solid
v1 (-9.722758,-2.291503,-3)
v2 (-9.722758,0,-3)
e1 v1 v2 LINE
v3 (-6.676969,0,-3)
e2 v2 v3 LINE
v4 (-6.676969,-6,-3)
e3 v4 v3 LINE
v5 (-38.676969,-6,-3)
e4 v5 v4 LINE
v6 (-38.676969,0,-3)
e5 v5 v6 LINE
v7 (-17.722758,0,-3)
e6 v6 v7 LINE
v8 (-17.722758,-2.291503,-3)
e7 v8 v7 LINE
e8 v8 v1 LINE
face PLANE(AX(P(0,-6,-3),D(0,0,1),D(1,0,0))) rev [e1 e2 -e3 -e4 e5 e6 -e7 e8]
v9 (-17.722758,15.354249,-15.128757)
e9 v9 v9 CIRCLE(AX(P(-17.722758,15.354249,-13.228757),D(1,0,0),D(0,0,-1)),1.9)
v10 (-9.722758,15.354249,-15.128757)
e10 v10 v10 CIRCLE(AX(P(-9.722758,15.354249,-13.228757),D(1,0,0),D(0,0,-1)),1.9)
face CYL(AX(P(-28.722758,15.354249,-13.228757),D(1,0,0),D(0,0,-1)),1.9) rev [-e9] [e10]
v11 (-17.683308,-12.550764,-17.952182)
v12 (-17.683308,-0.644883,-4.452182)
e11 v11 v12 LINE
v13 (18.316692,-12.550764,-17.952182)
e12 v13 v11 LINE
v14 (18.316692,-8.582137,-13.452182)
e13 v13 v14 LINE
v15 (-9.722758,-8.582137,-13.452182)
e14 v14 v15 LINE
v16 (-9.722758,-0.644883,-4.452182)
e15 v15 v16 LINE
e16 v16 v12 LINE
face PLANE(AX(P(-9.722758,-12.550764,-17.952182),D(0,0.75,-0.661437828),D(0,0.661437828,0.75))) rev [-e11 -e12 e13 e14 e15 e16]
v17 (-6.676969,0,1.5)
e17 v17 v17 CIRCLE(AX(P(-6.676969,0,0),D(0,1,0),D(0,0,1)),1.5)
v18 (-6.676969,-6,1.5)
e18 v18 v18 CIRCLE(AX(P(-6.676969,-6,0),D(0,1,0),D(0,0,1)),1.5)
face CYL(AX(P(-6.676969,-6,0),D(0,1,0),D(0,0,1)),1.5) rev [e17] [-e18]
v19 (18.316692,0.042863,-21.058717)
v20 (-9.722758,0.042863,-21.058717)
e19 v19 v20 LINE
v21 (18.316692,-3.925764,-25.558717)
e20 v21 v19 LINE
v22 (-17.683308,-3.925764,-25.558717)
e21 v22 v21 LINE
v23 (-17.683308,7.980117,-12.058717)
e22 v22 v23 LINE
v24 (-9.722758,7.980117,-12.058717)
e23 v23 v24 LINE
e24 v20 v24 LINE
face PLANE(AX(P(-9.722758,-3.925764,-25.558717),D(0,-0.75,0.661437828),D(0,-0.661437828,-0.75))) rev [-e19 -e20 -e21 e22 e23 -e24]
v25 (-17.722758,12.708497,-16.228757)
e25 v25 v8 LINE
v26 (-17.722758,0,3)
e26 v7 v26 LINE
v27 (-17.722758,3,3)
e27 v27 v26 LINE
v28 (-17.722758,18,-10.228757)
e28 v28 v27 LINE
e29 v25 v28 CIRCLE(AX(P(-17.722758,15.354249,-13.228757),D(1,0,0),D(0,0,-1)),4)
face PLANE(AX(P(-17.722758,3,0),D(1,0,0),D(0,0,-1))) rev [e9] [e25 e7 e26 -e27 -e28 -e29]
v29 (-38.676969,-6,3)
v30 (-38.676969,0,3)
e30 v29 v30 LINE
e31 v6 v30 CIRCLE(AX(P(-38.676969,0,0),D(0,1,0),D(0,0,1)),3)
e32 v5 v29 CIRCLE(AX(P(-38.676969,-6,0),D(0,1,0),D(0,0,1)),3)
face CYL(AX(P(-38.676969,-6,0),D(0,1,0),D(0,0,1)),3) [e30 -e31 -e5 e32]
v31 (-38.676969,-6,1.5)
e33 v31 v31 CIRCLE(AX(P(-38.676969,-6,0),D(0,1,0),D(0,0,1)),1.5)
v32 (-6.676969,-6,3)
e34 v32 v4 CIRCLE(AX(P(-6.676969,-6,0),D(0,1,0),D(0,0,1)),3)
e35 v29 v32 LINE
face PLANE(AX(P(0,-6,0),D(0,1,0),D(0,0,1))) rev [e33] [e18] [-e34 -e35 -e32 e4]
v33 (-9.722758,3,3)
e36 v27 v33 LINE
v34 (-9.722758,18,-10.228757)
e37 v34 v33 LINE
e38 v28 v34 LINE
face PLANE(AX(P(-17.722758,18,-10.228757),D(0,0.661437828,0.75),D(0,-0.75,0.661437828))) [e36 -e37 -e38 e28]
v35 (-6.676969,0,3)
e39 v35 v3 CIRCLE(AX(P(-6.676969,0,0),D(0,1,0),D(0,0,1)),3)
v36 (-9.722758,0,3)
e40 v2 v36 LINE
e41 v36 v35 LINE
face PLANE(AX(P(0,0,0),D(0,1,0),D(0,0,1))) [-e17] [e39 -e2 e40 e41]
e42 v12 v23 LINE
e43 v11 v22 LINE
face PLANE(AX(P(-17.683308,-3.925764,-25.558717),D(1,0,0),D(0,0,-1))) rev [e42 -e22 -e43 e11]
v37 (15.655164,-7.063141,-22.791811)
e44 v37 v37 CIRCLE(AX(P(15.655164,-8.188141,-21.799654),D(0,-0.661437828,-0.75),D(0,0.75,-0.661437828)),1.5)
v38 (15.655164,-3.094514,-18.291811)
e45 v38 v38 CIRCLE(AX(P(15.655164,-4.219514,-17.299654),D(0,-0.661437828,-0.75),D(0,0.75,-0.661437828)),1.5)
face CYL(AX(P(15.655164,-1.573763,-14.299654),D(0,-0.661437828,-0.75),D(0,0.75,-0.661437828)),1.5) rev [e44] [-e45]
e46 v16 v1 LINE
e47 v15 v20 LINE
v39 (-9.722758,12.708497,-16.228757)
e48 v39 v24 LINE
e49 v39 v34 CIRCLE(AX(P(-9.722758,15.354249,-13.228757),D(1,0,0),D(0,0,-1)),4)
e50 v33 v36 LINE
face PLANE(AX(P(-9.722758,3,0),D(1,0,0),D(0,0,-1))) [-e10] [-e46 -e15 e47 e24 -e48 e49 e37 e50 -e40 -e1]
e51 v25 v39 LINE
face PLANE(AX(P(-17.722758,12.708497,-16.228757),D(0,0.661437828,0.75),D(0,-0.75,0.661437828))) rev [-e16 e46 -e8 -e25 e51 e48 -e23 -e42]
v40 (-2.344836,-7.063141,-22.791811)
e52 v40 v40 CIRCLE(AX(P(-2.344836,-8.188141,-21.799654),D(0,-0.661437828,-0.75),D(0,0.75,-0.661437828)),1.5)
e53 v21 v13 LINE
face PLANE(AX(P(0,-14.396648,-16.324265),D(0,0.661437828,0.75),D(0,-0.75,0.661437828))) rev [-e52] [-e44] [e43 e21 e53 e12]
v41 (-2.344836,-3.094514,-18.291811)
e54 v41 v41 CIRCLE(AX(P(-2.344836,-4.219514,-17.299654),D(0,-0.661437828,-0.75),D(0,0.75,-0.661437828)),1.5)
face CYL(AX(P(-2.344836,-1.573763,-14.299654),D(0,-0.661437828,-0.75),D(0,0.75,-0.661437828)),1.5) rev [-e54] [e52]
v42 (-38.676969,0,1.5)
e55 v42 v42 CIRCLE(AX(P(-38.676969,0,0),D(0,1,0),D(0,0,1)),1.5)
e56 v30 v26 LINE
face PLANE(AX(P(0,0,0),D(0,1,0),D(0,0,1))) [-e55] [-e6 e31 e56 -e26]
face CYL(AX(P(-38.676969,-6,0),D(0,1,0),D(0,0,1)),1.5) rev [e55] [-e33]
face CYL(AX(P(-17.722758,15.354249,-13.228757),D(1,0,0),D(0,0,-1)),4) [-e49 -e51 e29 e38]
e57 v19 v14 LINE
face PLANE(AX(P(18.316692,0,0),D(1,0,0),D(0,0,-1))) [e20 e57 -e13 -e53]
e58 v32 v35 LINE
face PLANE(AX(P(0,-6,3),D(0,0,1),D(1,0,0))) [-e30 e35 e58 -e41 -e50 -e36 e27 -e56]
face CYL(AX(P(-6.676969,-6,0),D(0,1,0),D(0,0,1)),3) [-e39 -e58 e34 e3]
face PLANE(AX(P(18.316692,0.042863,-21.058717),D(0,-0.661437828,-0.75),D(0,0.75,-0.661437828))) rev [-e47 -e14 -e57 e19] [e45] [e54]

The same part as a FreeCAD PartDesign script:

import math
import FreeCAD as App
import Part
import Sketcher
Q = App.Units.Quantity


def add_polygon(sketch, points):
    """Adds a closed chain of lines whose ends are joined by coincident constraints."""
    first, n = sketch.GeometryCount, len(points)
    for a, b in zip(points, points[1:] + points[:1]):
        sketch.addGeometry(Part.LineSegment(App.Vector(*a, 0), App.Vector(*b, 0)), False)
    for i in range(n):
        sketch.addConstraint(Sketcher.Constraint("Coincident", first + i, 2, first + (i + 1) % n, 1))

doc = App.newDocument("Part")
body = doc.addObject("PartDesign::Body", "Body")

# Sketch on XZ plane
sketch1 = body.newObject("Sketcher::SketchObject", "Sketch")
sketch1.AttachmentSupport = (doc.getObject("XZ_Plane"), [""])
sketch1.MapMode = "FlatFace"
sketch1.addGeometry([
    Part.ArcOfCircle(Part.Circle(App.Vector(-38.676969, 0, 0), App.Vector(0, 0, 1), 3), math.radians(90), math.radians(270)),  # 0
    Part.LineSegment(App.Vector(-38.676969, 3, 0), App.Vector(-6.676969, 3, 0)),  # 1
    Part.ArcOfCircle(Part.Circle(App.Vector(-6.676969, 0, 0), App.Vector(0, 0, 1), 3), math.radians(-90), math.radians(90)),  # 2
    Part.LineSegment(App.Vector(-6.676969, -3, 0), App.Vector(-38.676969, -3, 0)),  # 3
    Part.Circle(App.Vector(-38.676969, 0, 0), App.Vector(0, 0, 1), 1.5),  # 4
    Part.Circle(App.Vector(-6.676969, 0, 0), App.Vector(0, 0, 1), 1.5),  # 5
], False)
sketch1.addConstraint([
    Sketcher.Constraint("Tangent", 0, 1, 1, 1),
    Sketcher.Constraint("Tangent", 1, 2, 2, 2),
    Sketcher.Constraint("Tangent", 2, 1, 3, 1),
    Sketcher.Constraint("Tangent", 3, 2, 0, 2),
    Sketcher.Constraint("Horizontal", 1),
    Sketcher.Constraint("Horizontal", 3),
    Sketcher.Constraint("Coincident", 4, 3, 0, 3),
    Sketcher.Constraint("Coincident", 5, 3, 2, 3),
    Sketcher.Constraint("Equal", 4, 5),
    Sketcher.Constraint("PointOnObject", 0, 3, -1),
    Sketcher.Constraint("Diameter", 4, Q("3 mm")),
    Sketcher.Constraint("Radius", 0, Q("3 mm")),
    Sketcher.Constraint("DistanceX", 1, 1, 1, 2, Q("32 mm")),
    Sketcher.Constraint("DistanceX", 0, 3, -1, 1, Q("38.676969 mm")),
])
pad1 = body.newObject("PartDesign::Pad", "Pad")
pad1.Profile = sketch1
pad1.Length = 6

# Sketch on XZ plane
sketch2 = body.newObject("Sketcher::SketchObject", "Sketch001")
sketch2.AttachmentSupport = (doc.getObject("XZ_Plane"), [""])
sketch2.MapMode = "FlatFace"
add_polygon(sketch2, [(-17.722758, 3), (-9.722758, 3), (-9.722758, -3), (-17.722758, -3)])  # lines 0-3
sketch2.addConstraint([
    Sketcher.Constraint("Horizontal", 0),
    Sketcher.Constraint("Vertical", 1),
    Sketcher.Constraint("Horizontal", 2),
    Sketcher.Constraint("Vertical", 3),
    Sketcher.Constraint("DistanceX", 0, 1, 0, 2, Q("8 mm")),
    Sketcher.Constraint("DistanceY", 1, 2, 1, 1, Q("6 mm")),
    Sketcher.Constraint("DistanceY", -1, 1, 0, 2, Q("3 mm")),
    Sketcher.Constraint("DistanceX", 0, 2, -1, 1, Q("9.722758 mm")),
])
pad2 = body.newObject("PartDesign::Pad", "Pad001")
pad2.Profile = sketch2
pad2.Length = 3
pad2.Reversed = True

# Sketch on YZ plane
sketch3 = body.newObject("Sketcher::SketchObject", "Sketch002")
sketch3.AttachmentSupport = (doc.getObject("YZ_Plane"), [""])
sketch3.MapMode = "FlatFace"
sketch3.AttachmentOffset = App.Placement(App.Vector(0, 0, -9.722758), App.Rotation())
sketch3.addGeometry([
    Part.LineSegment(App.Vector(-2.291503, -3, 0), App.Vector(12.708497, -16.228757, 0)),
    Part.ArcOfCircle(Part.Circle(App.Vector(15.354249, -13.228757, 0), App.Vector(0, 0, 1), 4), math.radians(-131.409622), math.radians(48.590378)),
    Part.LineSegment(App.Vector(18, -10.228757, 0), App.Vector(3, 3, 0)),
    Part.LineSegment(App.Vector(3, 3, 0), App.Vector(-2.291503, -3, 0)),
], False)
sketch3.addConstraint([
    Sketcher.Constraint("Tangent", 0, 2, 1, 1),
    Sketcher.Constraint("Tangent", 1, 2, 2, 1),
    Sketcher.Constraint("Coincident", 2, 2, 3, 1),
    Sketcher.Constraint("Coincident", 3, 2, 0, 1),
    Sketcher.Constraint("Parallel", 0, 2),
    Sketcher.Constraint("Perpendicular", 2, 3),
    Sketcher.Constraint("Radius", 1, Q("4 mm")),
    Sketcher.Constraint("Distance", 0, Q("20 mm")),
    Sketcher.Constraint("DistanceX", -1, 1, 1, 2, Q("18 mm")),
    Sketcher.Constraint("DistanceX", -1, 1, 2, 2, Q("3 mm")),
    Sketcher.Constraint("DistanceY", -1, 1, 2, 2, Q("3 mm")),
])
pad3 = body.newObject("PartDesign::Pad", "Pad002")
pad3.Profile = sketch3
pad3.Length = 8
pad3.Reversed = True

# Sketch on an angled plane
sketch4 = body.newObject("Sketcher::SketchObject", "Sketch003")
sketch4.Placement = App.Placement(App.Vector(0, -2.490768, -2.824265), App.Rotation(App.Vector(-1, 0, 0), App.Vector(0, 0.75, -0.661437828), App.Vector(0, -0.661437828, -0.75), "ZXY"))
add_polygon(sketch4, [(9.722758, 13.961179), (9.722758, 2.461179), (17.683308, 2.461179), (17.683308, 13.961179)])  # lines 0-3
sketch4.addConstraint([
    Sketcher.Constraint("Vertical", 0),
    Sketcher.Constraint("Horizontal", 1),
    Sketcher.Constraint("Vertical", 2),
    Sketcher.Constraint("Horizontal", 3),
    Sketcher.Constraint("DistanceY", 0, 2, 0, 1, Q("11.5 mm")),
    Sketcher.Constraint("DistanceX", 1, 1, 1, 2, Q("7.96055 mm")),
    Sketcher.Constraint("DistanceX", -1, 1, 0, 2, Q("9.722758 mm")),
    Sketcher.Constraint("DistanceY", -1, 1, 0, 2, Q("2.461179 mm")),
])
pad4 = body.newObject("PartDesign::Pad", "Pad003")
pad4.Profile = sketch4
pad4.Length = 18

# Sketch on YZ plane
sketch5 = body.newObject("Sketcher::SketchObject", "Sketch004")
sketch5.AttachmentSupport = (doc.getObject("YZ_Plane"), [""])
sketch5.MapMode = "FlatFace"
sketch5.AttachmentOffset = App.Placement(App.Vector(0, 0, -17.683308), App.Rotation())
add_polygon(sketch5, [(-3.925764, -25.558717), (-12.550764, -17.952182), (-8.582137, -13.452182), (0.042863, -21.058717)])  # lines 0-3
sketch5.addConstraint([
    Sketcher.Constraint("Perpendicular", 0, 1),
    Sketcher.Constraint("Perpendicular", 1, 2),
    Sketcher.Constraint("Perpendicular", 2, 3),
    Sketcher.Constraint("Distance", 1, Q("6 mm")),
    Sketcher.Constraint("Distance", 0, Q("11.5 mm")),
    Sketcher.Constraint("DistanceY", 0, 2, 1, 2, Q("4.5 mm")),
    Sketcher.Constraint("DistanceY", 0, 2, -1, 1, Q("17.952182 mm")),
    Sketcher.Constraint("DistanceX", 0, 2, -1, 1, Q("12.550764 mm")),
])
pad5 = body.newObject("PartDesign::Pad", "Pad004")
pad5.Profile = sketch5
pad5.Length = 36

# Sketch on YZ plane
sketch6 = body.newObject("Sketcher::SketchObject", "Sketch005")
sketch6.AttachmentSupport = (doc.getObject("YZ_Plane"), [""])
sketch6.MapMode = "FlatFace"
sketch6.AttachmentOffset = App.Placement(App.Vector(0, 0, -9.722758), App.Rotation())
sketch6.addGeometry(Part.Circle(App.Vector(15.354249, -13.228757, 0), App.Vector(0, 0, 1), 1.9), False)
sketch6.addConstraint([
    Sketcher.Constraint("Diameter", 0, Q("3.8 mm")),
    Sketcher.Constraint("DistanceX", -1, 1, 0, 3, Q("15.354249 mm")),
    Sketcher.Constraint("DistanceY", 0, 3, -1, 1, Q("13.228757 mm")),
])
pocket1 = body.newObject("PartDesign::Pocket", "Pocket")
pocket1.Profile = sketch6
pocket1.Length = 19

# Sketch on an angled plane
sketch7 = body.newObject("Sketcher::SketchObject", "Sketch006")
sketch7.Placement = App.Placement(App.Vector(0, -14.396648, -16.324265), App.Rotation(App.Vector(-1, 0, 0), App.Vector(0, 0.75, -0.661437828), App.Vector(0, -0.661437828, -0.75), "ZXY"))
sketch7.addGeometry([
    Part.Circle(App.Vector(2.344836, 8.27801, 0), App.Vector(0, 0, 1), 1.5),
    Part.Circle(App.Vector(-15.655164, 8.27801, 0), App.Vector(0, 0, 1), 1.5),
], False)
sketch7.addConstraint([
    Sketcher.Constraint("Equal", 0, 1),
    Sketcher.Constraint("Horizontal", 0, 3, 1, 3),
    Sketcher.Constraint("Diameter", 0, Q("3 mm")),
    Sketcher.Constraint("DistanceX", 1, 3, 0, 3, Q("18 mm")),
    Sketcher.Constraint("DistanceY", -1, 1, 0, 3, Q("8.27801 mm")),
    Sketcher.Constraint("DistanceX", -1, 1, 0, 3, Q("2.344836 mm")),
])
pocket2 = body.newObject("PartDesign::Pocket", "Pocket001")
pocket2.Profile = sketch7
pocket2.Length = 10

doc.recompute()
